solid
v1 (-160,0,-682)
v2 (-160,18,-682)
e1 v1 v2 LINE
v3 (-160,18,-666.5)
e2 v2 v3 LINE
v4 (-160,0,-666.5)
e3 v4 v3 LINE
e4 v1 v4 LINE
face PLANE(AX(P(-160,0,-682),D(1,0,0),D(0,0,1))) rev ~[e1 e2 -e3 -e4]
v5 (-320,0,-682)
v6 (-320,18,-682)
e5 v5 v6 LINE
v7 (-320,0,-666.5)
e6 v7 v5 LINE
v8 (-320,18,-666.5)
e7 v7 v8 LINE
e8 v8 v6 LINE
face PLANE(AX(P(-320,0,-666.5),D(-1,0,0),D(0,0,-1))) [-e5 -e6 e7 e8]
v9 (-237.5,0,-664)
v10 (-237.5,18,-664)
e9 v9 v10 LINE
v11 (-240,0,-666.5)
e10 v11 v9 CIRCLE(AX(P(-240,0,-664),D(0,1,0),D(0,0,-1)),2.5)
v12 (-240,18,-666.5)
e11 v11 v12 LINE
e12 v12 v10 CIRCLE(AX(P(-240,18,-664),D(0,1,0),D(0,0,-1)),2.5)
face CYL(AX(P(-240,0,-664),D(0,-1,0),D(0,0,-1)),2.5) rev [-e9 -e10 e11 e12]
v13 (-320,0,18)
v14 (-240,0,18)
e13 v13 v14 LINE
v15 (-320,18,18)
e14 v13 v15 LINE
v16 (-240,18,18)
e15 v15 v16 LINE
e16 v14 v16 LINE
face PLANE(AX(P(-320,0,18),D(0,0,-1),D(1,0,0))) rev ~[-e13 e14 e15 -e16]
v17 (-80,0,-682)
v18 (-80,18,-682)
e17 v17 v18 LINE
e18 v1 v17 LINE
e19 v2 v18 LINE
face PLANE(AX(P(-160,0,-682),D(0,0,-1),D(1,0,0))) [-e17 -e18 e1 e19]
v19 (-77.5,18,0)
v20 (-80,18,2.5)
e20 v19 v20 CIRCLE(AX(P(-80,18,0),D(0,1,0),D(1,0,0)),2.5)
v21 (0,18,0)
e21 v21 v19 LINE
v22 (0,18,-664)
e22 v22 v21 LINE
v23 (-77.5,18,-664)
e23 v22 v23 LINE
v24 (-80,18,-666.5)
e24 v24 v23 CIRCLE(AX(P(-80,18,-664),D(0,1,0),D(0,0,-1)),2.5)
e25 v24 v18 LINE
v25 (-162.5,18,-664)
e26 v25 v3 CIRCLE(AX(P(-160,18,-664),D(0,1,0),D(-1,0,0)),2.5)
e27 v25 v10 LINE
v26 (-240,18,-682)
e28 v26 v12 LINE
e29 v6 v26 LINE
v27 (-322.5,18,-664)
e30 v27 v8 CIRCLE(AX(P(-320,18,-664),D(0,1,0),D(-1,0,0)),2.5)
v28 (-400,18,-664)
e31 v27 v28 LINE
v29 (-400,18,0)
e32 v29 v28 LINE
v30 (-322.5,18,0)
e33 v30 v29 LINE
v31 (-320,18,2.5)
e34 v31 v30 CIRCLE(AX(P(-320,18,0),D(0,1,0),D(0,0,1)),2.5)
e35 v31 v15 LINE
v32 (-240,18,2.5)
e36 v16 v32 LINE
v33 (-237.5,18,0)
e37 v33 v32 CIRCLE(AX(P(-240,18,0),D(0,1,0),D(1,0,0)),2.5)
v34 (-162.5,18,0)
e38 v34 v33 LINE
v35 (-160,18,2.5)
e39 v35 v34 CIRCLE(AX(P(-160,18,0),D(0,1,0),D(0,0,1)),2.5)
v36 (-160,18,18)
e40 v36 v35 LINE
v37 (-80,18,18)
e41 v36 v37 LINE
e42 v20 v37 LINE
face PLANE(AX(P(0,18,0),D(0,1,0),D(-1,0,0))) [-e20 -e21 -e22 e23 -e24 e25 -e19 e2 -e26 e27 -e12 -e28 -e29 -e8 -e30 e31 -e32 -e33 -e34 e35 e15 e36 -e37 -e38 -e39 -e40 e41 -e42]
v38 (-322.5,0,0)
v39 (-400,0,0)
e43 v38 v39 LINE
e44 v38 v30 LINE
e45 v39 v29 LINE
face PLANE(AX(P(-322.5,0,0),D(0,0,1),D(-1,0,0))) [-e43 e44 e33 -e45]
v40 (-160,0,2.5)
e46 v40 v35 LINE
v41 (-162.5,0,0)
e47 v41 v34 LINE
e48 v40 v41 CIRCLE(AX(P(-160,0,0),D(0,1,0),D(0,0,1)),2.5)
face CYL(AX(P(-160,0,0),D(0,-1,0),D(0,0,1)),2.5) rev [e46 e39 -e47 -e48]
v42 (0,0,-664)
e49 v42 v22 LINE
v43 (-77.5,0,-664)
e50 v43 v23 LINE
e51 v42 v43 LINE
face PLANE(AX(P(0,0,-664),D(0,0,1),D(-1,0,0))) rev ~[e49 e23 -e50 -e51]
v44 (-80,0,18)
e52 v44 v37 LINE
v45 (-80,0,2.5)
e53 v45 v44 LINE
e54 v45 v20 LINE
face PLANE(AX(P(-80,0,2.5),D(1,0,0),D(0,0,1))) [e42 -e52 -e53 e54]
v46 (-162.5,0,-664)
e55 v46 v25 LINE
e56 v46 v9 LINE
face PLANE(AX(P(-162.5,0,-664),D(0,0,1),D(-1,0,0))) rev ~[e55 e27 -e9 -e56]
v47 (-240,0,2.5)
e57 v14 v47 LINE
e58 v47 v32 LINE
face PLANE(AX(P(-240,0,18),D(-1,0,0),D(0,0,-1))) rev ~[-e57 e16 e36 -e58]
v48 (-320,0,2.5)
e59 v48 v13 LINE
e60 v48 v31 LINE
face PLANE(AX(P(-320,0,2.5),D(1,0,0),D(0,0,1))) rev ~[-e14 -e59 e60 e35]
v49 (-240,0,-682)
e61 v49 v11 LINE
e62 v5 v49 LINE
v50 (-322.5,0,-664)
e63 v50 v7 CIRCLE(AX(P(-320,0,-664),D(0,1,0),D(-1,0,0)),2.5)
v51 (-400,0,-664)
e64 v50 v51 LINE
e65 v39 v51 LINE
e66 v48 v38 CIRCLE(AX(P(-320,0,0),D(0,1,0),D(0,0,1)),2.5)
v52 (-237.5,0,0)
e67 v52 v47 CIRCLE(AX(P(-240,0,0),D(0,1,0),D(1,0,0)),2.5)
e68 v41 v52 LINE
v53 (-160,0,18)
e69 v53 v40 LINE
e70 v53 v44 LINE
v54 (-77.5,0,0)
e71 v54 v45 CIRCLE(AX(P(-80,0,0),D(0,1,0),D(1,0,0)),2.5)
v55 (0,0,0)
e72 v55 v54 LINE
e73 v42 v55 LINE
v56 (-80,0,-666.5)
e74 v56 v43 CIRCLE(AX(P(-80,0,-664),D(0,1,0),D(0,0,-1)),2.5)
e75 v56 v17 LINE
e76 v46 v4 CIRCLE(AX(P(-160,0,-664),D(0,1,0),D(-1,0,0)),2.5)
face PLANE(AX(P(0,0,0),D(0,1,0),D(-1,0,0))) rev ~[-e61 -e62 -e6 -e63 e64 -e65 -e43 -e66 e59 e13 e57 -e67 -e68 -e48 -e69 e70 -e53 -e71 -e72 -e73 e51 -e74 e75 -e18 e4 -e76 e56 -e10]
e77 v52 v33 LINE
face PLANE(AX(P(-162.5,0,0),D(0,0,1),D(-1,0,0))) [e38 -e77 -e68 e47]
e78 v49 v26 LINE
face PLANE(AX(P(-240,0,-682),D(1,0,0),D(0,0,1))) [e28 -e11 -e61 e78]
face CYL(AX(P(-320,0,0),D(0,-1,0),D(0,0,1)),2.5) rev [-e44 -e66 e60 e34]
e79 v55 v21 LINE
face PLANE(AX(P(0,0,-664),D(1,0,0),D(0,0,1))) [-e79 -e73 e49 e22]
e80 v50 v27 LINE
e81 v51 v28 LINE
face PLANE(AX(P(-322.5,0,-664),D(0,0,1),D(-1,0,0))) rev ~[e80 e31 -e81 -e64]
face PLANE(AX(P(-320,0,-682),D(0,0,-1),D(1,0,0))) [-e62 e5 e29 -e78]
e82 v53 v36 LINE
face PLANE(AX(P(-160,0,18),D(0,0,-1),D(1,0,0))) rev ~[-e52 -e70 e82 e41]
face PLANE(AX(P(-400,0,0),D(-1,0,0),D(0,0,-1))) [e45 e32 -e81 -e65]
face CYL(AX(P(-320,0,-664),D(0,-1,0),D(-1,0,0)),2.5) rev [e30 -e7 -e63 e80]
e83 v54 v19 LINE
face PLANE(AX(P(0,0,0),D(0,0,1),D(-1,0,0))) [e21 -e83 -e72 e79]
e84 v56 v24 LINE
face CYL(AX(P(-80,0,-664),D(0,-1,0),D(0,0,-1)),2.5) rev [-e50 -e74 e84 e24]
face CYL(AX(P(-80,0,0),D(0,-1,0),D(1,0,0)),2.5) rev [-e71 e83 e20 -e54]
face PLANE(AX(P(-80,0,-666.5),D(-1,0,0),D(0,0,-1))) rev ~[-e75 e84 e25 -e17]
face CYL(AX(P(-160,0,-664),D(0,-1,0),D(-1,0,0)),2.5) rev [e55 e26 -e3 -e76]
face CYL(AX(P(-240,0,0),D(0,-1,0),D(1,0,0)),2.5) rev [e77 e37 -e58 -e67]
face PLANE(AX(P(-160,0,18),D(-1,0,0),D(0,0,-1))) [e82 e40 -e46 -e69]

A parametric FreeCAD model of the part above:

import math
import FreeCAD as App
import Part
import Sketcher

V = App.Vector

doc = App.newDocument("Part")
params = doc.addObject("Spreadsheet::Sheet", "Params")
for row, (alias, value) in enumerate([
    ("sketch1_radius", "2.5 mm"),
    ("sketch1_width", "80 mm"),
    ("sketch1_height", "664 mm"),
    ("pad1_length", "18 mm"),
], start=1):
    params.set(f"A{row}", alias)
    params.set(f"B{row}", "=" + value)
    params.setAlias(f"B{row}", alias)

body = doc.addObject("PartDesign::Body", "Body")

sketch1 = body.newObject("Sketcher::SketchObject", "Sketch")
sketch1.AttachmentSupport = (doc.getObject("XZ_Plane"), [""])
sketch1.MapMode = "FlatFace"
sketch1.addGeometry([
    Part.LineSegment(V(-400, -664, 0), V(-400, 0, 0)),
    Part.LineSegment(V(-400, 0, 0), V(-322.5, 0, 0)),
    Part.ArcOfCircle(Part.Circle(V(-320, 0, 0), V(0, 0, 1), 2.5), math.radians(180), math.radians(450)),
    Part.LineSegment(V(-320, 2.5, 0), V(-320, 18, 0)),
    Part.LineSegment(V(-320, 18, 0), V(-240, 18, 0)),
    Part.LineSegment(V(-240, 18, 0), V(-240, 2.5, 0)),
    Part.ArcOfCircle(Part.Circle(V(-240, 0, 0), V(0, 0, 1), 2.5), math.radians(90), math.radians(360)),
    Part.LineSegment(V(-237.5, 0, 0), V(-162.5, 0, 0)),
    Part.ArcOfCircle(Part.Circle(V(-160, 0, 0), V(0, 0, 1), 2.5), math.radians(180), math.radians(450)),
    Part.LineSegment(V(-160, 2.5, 0), V(-160, 18, 0)),
    Part.LineSegment(V(-160, 18, 0), V(-80, 18, 0)),
    Part.LineSegment(V(-80, 18, 0), V(-80, 2.5, 0)),
    Part.ArcOfCircle(Part.Circle(V(-80, 0, 0), V(0, 0, 1), 2.5), math.radians(90), math.radians(360)),
    Part.LineSegment(V(-77.5, 0, 0), V(0, 0, 0)),
    Part.LineSegment(V(0, 0, 0), V(0, -664, 0)),
    Part.LineSegment(V(0, -664, 0), V(-77.5, -664, 0)),
    Part.ArcOfCircle(Part.Circle(V(-80, -664, 0), V(0, 0, 1), 2.5), math.radians(0), math.radians(270)),
    Part.LineSegment(V(-80, -666.5, 0), V(-80, -682, 0)),
    Part.LineSegment(V(-80, -682, 0), V(-160, -682, 0)),
    Part.LineSegment(V(-160, -682, 0), V(-160, -666.5, 0)),
    Part.ArcOfCircle(Part.Circle(V(-160, -664, 0), V(0, 0, 1), 2.5), math.radians(-90), math.radians(180)),
    Part.LineSegment(V(-162.5, -664, 0), V(-237.5, -664, 0)),
    Part.ArcOfCircle(Part.Circle(V(-240, -664, 0), V(0, 0, 1), 2.5), math.radians(0), math.radians(270)),
    Part.LineSegment(V(-240, -666.5, 0), V(-240, -682, 0)),
    Part.LineSegment(V(-240, -682, 0), V(-320, -682, 0)),
    Part.LineSegment(V(-320, -682, 0), V(-320, -666.5, 0)),
    Part.ArcOfCircle(Part.Circle(V(-320, -664, 0), V(0, 0, 1), 2.5), math.radians(-90), math.radians(180)),
    Part.LineSegment(V(-322.5, -664, 0), V(-400, -664, 0)),
], False)
sketch1.addConstraint([
    Sketcher.Constraint("Coincident", 0, 2, 1, 1),
    Sketcher.Constraint("Coincident", 1, 2, 2, 1),
    Sketcher.Constraint("Coincident", 2, 2, 3, 1),
    Sketcher.Constraint("Coincident", 3, 2, 4, 1),
    Sketcher.Constraint("Coincident", 4, 2, 5, 1),
    Sketcher.Constraint("Coincident", 5, 2, 6, 1),
    Sketcher.Constraint("Coincident", 6, 2, 7, 1),
    Sketcher.Constraint("Coincident", 7, 2, 8, 1),
    Sketcher.Constraint("Coincident", 8, 2, 9, 1),
    Sketcher.Constraint("Coincident", 9, 2, 10, 1),
    Sketcher.Constraint("Coincident", 10, 2, 11, 1),
    Sketcher.Constraint("Coincident", 11, 2, 12, 1),
    Sketcher.Constraint("Coincident", 12, 2, 13, 1),
    Sketcher.Constraint("Coincident", 13, 2, 14, 1),
    Sketcher.Constraint("Coincident", 14, 2, 15, 1),
    Sketcher.Constraint("Coincident", 15, 2, 16, 1),
    Sketcher.Constraint("Coincident", 16, 2, 17, 1),
    Sketcher.Constraint("Coincident", 17, 2, 18, 1),
    Sketcher.Constraint("Coincident", 18, 2, 19, 1),
    Sketcher.Constraint("Coincident", 19, 2, 20, 1),
    Sketcher.Constraint("Coincident", 20, 2, 21, 1),
    Sketcher.Constraint("Coincident", 21, 2, 22, 1),
    Sketcher.Constraint("Coincident", 22, 2, 23, 1),
    Sketcher.Constraint("Coincident", 23, 2, 24, 1),
    Sketcher.Constraint("Coincident", 24, 2, 25, 1),
    Sketcher.Constraint("Coincident", 25, 2, 26, 1),
    Sketcher.Constraint("Coincident", 26, 2, 27, 1),
    Sketcher.Constraint("Coincident", 27, 2, 0, 1),
    Sketcher.Constraint("Vertical", 0),
    Sketcher.Constraint("Horizontal", 1),
    Sketcher.Constraint("Vertical", 3),
    Sketcher.Constraint("Horizontal", 4),
    Sketcher.Constraint("Vertical", 5),
    Sketcher.Constraint("Horizontal", 7),
    Sketcher.Constraint("Vertical", 9),
    Sketcher.Constraint("Horizontal", 10),
    Sketcher.Constraint("Vertical", 11),
    Sketcher.Constraint("Horizontal", 13),
    Sketcher.Constraint("Vertical", 14),
    Sketcher.Constraint("Horizontal", 15),
    Sketcher.Constraint("Vertical", 17),
    Sketcher.Constraint("Horizontal", 18),
    Sketcher.Constraint("Vertical", 19),
    Sketcher.Constraint("Horizontal", 21),
    Sketcher.Constraint("Vertical", 23),
    Sketcher.Constraint("Horizontal", 24),
    Sketcher.Constraint("Vertical", 25),
    Sketcher.Constraint("Horizontal", 27),
    Sketcher.Constraint("Coincident", 13, 2, -1, 1),
    Sketcher.Constraint("Equal", 2, 6),
    Sketcher.Constraint("Equal", 6, 8),
    Sketcher.Constraint("Equal", 8, 12),
    Sketcher.Constraint("Equal", 12, 16),
    Sketcher.Constraint("Equal", 16, 20),
    Sketcher.Constraint("Equal", 20, 22),
    Sketcher.Constraint("Equal", 22, 26),
    Sketcher.Constraint("PointOnObject", 2, 3, -1),
    Sketcher.Constraint("PointOnObject", 6, 3, -1),
    Sketcher.Constraint("PointOnObject", 8, 3, -1),
    Sketcher.Constraint("PointOnObject", 12, 3, -1),
    Sketcher.Constraint("PointOnObject", 0, 2, -1),
    Sketcher.Constraint("PointOnObject", 6, 2, -1),
    Sketcher.Constraint("Horizontal", 16, 3, 20, 3),
    Sketcher.Constraint("Horizontal", 20, 3, 22, 3),
    Sketcher.Constraint("Horizontal", 22, 3, 26, 3),
    Sketcher.Constraint("Horizontal", 4, 2, 9, 2),
    Sketcher.Constraint("Horizontal", 26, 3, 14, 2),
    Sketcher.Constraint("Horizontal", 15, 2, 20, 2),
    Sketcher.Constraint("Horizontal", 18, 2, 23, 2),
    Sketcher.Constraint("Horizontal", 21, 2, 26, 2),
    Sketcher.Constraint("Vertical", 12, 3, 16, 3),
    Sketcher.Constraint("Vertical", 8, 3, 20, 3),
    Sketcher.Constraint("Vertical", 6, 3, 22, 3),
    Sketcher.Constraint("Vertical", 2, 3, 26, 3),
    Sketcher.Constraint("Vertical", 26, 3, 2, 2),
    Sketcher.Constraint("Vertical", 22, 3, 4, 2),
    Sketcher.Constraint("Vertical", 20, 3, 8, 2),
    Sketcher.Constraint("Vertical", 16, 3, 10, 2),
    Sketcher.Constraint("Vertical", 11, 2, 16, 2),
    Sketcher.Constraint("Vertical", 9, 2, 18, 2),
    Sketcher.Constraint("Vertical", 5, 2, 22, 2),
    Sketcher.Constraint("Vertical", 3, 2, 24, 2),
    Sketcher.Constraint("Equal", 4, 10),
    Sketcher.Constraint("Equal", 1, 13),
    Sketcher.Constraint("Equal", 11, 17),
    Sketcher.Constraint("Radius", 2, 2.5),
    Sketcher.Constraint("DistanceX", 4, 1, 4, 2, 80.0),
    Sketcher.Constraint("DistanceY", 0, 1, 0, 2, 664.0),
    Sketcher.Constraint("DistanceX", 12, 3, -1, 1, 80.0),
    Sketcher.Constraint("DistanceY", -1, 1, 3, 2, 18.0),
    Sketcher.Constraint("DistanceX", 6, 3, 8, 3, 80.0),
])
sketch1.setExpression("Constraints[85]", "Params.sketch1_radius")
sketch1.setExpression("Constraints[86]", "Params.sketch1_width")
sketch1.setExpression("Constraints[87]", "Params.sketch1_height")
pad1 = body.newObject("PartDesign::Pad", "Pad")
pad1.Profile = sketch1
pad1.setExpression("Length", "Params.pad1_length")
pad1.Reversed = True

doc.recompute()
